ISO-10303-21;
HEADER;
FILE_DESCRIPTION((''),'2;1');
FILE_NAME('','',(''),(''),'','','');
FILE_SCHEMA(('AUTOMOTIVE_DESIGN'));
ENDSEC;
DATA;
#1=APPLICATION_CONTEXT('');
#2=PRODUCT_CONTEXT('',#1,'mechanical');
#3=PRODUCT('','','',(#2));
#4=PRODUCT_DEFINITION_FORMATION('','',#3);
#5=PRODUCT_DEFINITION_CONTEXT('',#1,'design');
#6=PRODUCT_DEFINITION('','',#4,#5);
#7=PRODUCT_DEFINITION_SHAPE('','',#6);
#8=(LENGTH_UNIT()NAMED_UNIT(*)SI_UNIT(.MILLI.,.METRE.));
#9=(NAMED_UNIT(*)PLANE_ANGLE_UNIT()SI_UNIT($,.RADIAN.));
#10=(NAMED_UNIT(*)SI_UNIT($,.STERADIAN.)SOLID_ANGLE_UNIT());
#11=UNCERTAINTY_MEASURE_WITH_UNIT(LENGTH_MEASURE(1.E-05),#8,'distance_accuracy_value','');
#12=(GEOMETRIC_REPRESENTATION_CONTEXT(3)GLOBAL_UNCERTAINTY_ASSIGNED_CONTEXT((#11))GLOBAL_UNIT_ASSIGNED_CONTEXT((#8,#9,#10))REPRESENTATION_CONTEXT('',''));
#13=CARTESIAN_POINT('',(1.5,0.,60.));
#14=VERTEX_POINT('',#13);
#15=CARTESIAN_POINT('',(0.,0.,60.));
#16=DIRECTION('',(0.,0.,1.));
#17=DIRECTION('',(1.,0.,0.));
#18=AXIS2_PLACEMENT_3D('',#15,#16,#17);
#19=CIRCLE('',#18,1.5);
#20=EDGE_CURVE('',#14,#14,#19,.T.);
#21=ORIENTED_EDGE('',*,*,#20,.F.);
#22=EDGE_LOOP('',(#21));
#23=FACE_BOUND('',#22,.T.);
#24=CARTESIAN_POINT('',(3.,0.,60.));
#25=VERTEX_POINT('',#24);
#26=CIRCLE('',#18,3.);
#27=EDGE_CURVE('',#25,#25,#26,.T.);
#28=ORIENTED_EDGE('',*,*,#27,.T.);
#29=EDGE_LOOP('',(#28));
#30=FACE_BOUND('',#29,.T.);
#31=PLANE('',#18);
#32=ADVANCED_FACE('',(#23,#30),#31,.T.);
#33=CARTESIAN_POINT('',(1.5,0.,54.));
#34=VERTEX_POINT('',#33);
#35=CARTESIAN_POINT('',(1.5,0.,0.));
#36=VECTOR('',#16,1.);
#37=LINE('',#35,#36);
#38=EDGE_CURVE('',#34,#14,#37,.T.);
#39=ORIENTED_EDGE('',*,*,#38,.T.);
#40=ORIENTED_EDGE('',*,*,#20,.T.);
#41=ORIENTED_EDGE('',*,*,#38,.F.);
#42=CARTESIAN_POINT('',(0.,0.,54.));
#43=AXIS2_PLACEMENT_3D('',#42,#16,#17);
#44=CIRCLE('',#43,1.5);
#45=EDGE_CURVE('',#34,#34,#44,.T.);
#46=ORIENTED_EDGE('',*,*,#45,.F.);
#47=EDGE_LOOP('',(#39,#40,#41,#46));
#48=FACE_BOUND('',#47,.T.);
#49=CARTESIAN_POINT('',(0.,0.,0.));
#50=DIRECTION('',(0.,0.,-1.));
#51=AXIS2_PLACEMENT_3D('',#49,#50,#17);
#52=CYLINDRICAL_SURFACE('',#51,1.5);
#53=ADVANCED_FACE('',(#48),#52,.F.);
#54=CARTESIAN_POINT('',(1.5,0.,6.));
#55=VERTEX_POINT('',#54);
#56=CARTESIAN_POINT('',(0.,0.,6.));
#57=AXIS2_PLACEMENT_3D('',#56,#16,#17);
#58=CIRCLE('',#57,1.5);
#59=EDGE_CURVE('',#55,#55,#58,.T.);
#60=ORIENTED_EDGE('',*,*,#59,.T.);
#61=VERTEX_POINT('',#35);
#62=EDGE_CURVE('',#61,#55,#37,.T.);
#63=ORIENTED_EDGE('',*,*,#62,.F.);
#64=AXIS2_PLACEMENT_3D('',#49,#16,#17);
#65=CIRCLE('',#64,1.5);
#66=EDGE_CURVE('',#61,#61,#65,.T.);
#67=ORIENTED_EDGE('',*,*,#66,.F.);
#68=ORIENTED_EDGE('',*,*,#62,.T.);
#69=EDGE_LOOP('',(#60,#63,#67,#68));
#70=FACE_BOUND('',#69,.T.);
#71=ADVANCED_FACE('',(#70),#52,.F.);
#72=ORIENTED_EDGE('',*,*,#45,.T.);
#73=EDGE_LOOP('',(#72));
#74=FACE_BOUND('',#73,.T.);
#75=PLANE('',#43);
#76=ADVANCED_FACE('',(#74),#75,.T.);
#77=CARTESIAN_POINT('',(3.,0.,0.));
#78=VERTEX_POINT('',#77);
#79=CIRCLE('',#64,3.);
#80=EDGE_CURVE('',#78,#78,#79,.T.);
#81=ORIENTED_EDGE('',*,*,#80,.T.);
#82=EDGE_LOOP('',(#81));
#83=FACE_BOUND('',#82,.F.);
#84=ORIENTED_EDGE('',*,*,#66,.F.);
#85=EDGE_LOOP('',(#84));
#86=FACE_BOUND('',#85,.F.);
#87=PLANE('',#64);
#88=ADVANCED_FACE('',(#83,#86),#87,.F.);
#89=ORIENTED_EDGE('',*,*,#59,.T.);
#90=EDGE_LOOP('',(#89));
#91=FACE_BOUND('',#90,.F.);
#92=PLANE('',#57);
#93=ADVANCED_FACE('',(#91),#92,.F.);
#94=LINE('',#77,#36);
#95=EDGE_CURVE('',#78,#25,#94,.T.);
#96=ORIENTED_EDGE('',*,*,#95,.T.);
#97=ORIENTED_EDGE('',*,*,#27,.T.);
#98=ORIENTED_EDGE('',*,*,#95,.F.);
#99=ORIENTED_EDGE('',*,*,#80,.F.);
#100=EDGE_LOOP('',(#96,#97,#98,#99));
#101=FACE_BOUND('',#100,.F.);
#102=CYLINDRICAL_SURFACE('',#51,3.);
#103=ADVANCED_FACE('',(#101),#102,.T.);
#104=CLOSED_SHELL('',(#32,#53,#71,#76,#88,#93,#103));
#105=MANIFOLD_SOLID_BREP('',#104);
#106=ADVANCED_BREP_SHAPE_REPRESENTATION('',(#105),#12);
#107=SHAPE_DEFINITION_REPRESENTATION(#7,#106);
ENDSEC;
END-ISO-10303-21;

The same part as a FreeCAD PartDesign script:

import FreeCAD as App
import Part
import Sketcher
Q = App.Units.Quantity

doc = App.newDocument("Part")
body = doc.addObject("PartDesign::Body", "Body")

# Sketch on XY plane
sketch1 = doc.addObject("Sketcher::SketchObject", "Sketch")
body.addObject(sketch1)
sketch1.AttachmentSupport = (doc.XY_Plane, [""])
sketch1.MapMode = "FlatFace"
sketch1.addGeometry([
    Part.Circle(App.Vector(0, 0, 0), App.Vector(0, 0, 1), 3),
    Part.Circle(App.Vector(0, 0, 0), App.Vector(0, 0, 1), 1.5),
], False)
sketch1.addConstraint([
    Sketcher.Constraint("Coincident", 0, 3, -1, 1),
    Sketcher.Constraint("Coincident", 1, 3, -1, 1),
    Sketcher.Constraint("Diameter", 0, Q("6 mm")),
    Sketcher.Constraint("Diameter", 1, Q("3 mm")),
])
pad1 = doc.addObject("PartDesign::Pad", "Pad")
body.addObject(pad1)
pad1.Profile = sketch1
pad1.Length = 60

# Sketch on XY plane
sketch2 = doc.addObject("Sketcher::SketchObject", "Sketch001")
body.addObject(sketch2)
sketch2.AttachmentSupport = (doc.XY_Plane, [""])
sketch2.MapMode = "FlatFace"
sketch2.AttachmentOffset = App.Placement(App.Vector(0, 0, 54), App.Rotation())
sketch2.addGeometry(Part.Circle(App.Vector(0, 0, 0), App.Vector(0, 0, 1), 1.5), False)
sketch2.addConstraint([
    Sketcher.Constraint("Coincident", 0, 3, -1, 1),
    Sketcher.Constraint("Diameter", 0, Q("3 mm")),
])
pad2 = doc.addObject("PartDesign::Pad", "Pad001")
body.addObject(pad2)
pad2.Profile = sketch2
pad2.Length = 48
pad2.Reversed = True

doc.recompute()
